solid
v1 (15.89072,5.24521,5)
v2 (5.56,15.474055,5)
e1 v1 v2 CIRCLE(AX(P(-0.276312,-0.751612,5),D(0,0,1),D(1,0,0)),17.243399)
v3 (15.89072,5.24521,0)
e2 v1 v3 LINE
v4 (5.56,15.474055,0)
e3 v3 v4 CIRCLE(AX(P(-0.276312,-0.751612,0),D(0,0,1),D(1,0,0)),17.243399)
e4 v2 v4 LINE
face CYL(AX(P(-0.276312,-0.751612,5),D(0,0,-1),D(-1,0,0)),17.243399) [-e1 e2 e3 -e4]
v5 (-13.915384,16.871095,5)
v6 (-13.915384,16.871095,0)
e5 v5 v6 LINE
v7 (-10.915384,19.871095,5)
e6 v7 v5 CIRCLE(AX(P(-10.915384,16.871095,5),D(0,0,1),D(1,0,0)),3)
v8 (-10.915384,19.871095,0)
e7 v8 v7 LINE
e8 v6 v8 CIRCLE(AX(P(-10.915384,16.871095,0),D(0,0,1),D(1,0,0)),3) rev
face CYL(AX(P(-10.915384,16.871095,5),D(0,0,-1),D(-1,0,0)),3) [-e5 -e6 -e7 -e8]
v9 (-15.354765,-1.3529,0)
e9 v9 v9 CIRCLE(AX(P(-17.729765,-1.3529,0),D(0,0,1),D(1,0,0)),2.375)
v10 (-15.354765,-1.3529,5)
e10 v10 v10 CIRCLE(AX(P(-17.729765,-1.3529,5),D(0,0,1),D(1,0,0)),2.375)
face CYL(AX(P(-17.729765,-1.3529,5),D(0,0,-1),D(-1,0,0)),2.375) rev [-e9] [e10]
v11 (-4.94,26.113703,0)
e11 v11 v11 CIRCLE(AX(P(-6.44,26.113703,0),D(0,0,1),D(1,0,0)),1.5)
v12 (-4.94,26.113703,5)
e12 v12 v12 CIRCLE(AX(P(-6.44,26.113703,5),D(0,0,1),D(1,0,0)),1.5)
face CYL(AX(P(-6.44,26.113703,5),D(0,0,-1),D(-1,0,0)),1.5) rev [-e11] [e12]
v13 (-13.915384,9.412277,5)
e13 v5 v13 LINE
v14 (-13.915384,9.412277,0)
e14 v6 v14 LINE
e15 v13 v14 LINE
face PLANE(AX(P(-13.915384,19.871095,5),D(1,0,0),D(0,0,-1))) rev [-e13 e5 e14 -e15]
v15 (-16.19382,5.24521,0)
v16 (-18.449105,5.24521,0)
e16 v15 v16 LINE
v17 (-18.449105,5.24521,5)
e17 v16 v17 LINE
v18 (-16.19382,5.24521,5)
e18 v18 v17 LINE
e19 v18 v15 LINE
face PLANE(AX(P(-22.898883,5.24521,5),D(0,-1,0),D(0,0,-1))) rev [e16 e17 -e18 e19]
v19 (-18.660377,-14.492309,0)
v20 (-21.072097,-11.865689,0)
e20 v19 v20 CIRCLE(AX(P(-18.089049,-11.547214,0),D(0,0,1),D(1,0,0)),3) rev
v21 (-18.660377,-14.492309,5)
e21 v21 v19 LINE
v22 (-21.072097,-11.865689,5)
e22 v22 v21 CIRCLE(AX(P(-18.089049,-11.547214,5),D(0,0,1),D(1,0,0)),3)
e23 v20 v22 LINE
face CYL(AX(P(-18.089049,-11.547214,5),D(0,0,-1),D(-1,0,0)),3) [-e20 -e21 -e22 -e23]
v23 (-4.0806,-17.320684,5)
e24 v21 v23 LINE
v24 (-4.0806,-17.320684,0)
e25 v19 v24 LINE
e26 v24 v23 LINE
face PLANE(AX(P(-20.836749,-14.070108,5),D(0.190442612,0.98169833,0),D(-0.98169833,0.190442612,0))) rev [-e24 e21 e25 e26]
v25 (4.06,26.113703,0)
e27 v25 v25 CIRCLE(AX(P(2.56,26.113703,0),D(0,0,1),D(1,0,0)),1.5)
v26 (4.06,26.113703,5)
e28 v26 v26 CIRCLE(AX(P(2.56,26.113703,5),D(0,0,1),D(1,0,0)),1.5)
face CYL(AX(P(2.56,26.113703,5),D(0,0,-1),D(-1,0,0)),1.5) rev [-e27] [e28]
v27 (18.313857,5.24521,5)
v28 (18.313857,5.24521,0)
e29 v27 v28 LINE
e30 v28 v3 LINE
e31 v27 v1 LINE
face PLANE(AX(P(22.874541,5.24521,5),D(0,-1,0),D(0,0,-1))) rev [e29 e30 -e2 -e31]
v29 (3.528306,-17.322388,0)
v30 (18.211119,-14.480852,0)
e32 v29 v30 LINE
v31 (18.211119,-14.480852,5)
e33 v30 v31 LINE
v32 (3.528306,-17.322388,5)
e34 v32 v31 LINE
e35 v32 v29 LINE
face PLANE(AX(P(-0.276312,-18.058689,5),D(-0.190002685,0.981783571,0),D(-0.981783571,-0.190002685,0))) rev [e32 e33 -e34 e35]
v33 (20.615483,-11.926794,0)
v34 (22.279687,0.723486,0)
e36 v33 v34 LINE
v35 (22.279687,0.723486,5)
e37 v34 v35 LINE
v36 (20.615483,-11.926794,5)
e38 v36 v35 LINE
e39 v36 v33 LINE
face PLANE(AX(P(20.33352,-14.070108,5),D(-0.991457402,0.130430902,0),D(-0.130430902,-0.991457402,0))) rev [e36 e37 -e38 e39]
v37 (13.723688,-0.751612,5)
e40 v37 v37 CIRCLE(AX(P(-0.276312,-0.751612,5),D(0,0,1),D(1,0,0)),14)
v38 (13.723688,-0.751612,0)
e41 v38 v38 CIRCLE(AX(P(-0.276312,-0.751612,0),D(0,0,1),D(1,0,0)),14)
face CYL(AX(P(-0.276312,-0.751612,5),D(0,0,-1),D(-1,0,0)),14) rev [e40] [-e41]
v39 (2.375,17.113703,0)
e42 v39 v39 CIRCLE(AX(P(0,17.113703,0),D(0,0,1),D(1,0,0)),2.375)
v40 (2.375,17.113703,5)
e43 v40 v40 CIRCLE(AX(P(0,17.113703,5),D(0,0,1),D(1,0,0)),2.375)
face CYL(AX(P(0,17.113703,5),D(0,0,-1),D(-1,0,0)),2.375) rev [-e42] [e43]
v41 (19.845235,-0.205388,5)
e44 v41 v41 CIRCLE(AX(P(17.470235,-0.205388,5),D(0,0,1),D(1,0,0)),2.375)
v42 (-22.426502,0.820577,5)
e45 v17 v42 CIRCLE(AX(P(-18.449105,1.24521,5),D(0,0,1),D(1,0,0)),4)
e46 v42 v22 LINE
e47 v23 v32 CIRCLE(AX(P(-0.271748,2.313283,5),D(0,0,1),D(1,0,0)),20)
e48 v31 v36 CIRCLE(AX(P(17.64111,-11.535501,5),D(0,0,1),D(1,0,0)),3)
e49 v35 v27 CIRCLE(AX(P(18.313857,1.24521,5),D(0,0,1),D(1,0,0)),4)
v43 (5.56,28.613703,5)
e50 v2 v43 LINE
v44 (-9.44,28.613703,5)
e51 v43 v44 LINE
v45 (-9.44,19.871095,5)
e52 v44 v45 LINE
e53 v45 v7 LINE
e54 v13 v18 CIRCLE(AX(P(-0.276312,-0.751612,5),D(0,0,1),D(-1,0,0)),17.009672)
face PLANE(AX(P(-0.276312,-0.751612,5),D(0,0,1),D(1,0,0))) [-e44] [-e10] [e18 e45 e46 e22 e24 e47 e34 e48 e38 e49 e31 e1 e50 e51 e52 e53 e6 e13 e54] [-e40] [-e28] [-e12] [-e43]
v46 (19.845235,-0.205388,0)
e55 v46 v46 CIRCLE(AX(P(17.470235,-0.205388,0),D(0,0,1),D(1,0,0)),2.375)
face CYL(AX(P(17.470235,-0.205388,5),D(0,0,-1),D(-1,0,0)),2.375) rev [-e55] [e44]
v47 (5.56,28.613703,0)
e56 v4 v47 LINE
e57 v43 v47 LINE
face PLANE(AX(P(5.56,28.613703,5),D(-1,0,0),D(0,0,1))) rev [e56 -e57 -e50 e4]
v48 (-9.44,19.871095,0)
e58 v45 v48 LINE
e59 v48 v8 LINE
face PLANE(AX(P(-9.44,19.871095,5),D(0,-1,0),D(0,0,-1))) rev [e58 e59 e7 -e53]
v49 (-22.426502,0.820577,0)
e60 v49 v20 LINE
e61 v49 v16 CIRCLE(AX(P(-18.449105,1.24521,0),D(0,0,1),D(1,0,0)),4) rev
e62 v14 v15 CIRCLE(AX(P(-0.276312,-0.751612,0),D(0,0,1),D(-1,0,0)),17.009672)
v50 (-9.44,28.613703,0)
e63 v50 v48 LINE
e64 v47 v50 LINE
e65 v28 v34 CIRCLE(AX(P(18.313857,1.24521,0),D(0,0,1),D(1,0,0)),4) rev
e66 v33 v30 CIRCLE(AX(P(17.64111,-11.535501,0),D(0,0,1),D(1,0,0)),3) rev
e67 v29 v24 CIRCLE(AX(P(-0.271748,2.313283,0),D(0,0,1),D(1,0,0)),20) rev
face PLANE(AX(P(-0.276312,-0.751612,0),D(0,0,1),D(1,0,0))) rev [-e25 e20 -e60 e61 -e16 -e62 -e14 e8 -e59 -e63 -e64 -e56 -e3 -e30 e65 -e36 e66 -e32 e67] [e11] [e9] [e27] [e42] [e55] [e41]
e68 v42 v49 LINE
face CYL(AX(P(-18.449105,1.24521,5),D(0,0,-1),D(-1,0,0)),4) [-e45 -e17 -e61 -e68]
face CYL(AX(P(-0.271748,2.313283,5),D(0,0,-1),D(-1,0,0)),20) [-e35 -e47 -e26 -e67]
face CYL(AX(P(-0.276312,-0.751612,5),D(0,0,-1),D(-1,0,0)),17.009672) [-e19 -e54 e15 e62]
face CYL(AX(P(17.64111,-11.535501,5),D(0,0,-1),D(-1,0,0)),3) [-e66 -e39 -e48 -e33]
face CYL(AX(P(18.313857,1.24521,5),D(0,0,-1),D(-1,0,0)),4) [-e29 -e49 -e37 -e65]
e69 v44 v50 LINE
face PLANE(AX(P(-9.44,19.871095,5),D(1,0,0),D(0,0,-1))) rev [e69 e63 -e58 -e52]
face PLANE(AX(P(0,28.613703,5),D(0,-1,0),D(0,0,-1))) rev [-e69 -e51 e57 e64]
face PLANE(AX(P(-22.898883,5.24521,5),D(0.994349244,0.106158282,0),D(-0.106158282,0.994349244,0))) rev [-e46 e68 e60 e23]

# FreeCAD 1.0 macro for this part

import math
import FreeCAD as App
import Part
import Sketcher

V = App.Vector
Q = App.Units.Quantity


def edges_at(feature, points):
    """Names of the edges that pass closest to the given points."""
    edges = feature.Shape.Edges
    near = lambda p: min(range(len(edges)), key=lambda i: edges[i].distToShape(Part.Vertex(*p))[0])
    return sorted({f"Edge{near(p) + 1}" for p in points})

doc = App.newDocument("Part")
params = doc.addObject("Spreadsheet::Sheet", "Params")
for row, (alias, value) in enumerate([
    ("sketch1_diameter", "28 mm"),
    ("sketch1_diameter2", "3 mm"),
    ("sketch1_diameter3", "4.75 mm"),
    ("sketch1_width", "15 mm"),
    ("pad1_length", "5 mm"),
    ("fillet_radius", "4 mm"),
    ("fillet2_radius", "3 mm"),
    ("fillet3_radius", "20 mm"),
    ("fillet4_radius", "3 mm"),
], start=1):
    params.set(f"A{row}", alias)
    params.set(f"B{row}", "=" + value)
    params.setAlias(f"B{row}", alias)

body = doc.addObject("PartDesign::Body", "Body")

# Sketch on XY plane
sketch1 = doc.addObject("Sketcher::SketchObject", "Sketch")
body.addObject(sketch1)
sketch1.AttachmentSupport = (doc.XY_Plane, [""])
sketch1.MapMode = "FlatFace"
sketch1.addGeometry([
    Part.LineSegment(V(-22.9, 5.2, 0), V(-20.8, -14.1, 0)),  # 0
    Part.LineSegment(V(-20.8, -14.1, 0), V(-0.3, -18.1, 0)),  # 1
    Part.LineSegment(V(-0.3, -18.1, 0), V(20.3, -14.1, 0)),  # 2
    Part.LineSegment(V(20.3, -14.1, 0), V(22.9, 5.2, 0)),  # 3
    Part.LineSegment(V(22.9, 5.2, 0), V(15.9, 5.2, 0)),  # 4
    Part.ArcOfCircle(Part.Circle(V(-0.3, -0.8, 0), V(0, 0, 1), 17.2), math.radians(20), math.radians(70)),  # 5
    Part.LineSegment(V(5.6, 15.5, 0), V(5.6, 28.6, 0)),  # 6
    Part.LineSegment(V(5.6, 28.6, 0), V(-9.4, 28.6, 0)),  # 7
    Part.LineSegment(V(-9.4, 28.6, 0), V(-9.4, 19.9, 0)),  # 8
    Part.LineSegment(V(-9.4, 19.9, 0), V(-13.9, 19.9, 0)),  # 9
    Part.LineSegment(V(-13.9, 19.9, 0), V(-13.9, 9.4, 0)),  # 10
    Part.ArcOfCircle(Part.Circle(V(-0.3, -0.8, 0), V(0, 0, 1), 17), math.radians(143.31), math.radians(159.36)),  # 11
    Part.LineSegment(V(-16.2, 5.2, 0), V(-22.9, 5.2, 0)),  # 12
    Part.Circle(V(-17.7, -1.4, 0), V(0, 0, 1), 2.4),  # 13
    Part.Circle(V(-0.3, -0.8, 0), V(0, 0, 1), 14),  # 14
    Part.Circle(V(17.5, -0.2, 0), V(0, 0, 1), 2.4),  # 15
    Part.Circle(V(-6.4, 26.1, 0), V(0, 0, 1), 1.5),  # 16
    Part.Circle(V(0, 17.1, 0), V(0, 0, 1), 2.4),  # 17
    Part.Circle(V(2.6, 26.1, 0), V(0, 0, 1), 1.5),  # 18
], False)
sketch1.addConstraint([
    Sketcher.Constraint("Coincident", 0, 2, 1, 1),
    Sketcher.Constraint("Coincident", 1, 2, 2, 1),
    Sketcher.Constraint("Coincident", 2, 2, 3, 1),
    Sketcher.Constraint("Coincident", 3, 2, 4, 1),
    Sketcher.Constraint("Coincident", 4, 2, 5, 1),
    Sketcher.Constraint("Coincident", 5, 2, 6, 1),
    Sketcher.Constraint("Coincident", 6, 2, 7, 1),
    Sketcher.Constraint("Coincident", 7, 2, 8, 1),
    Sketcher.Constraint("Coincident", 8, 2, 9, 1),
    Sketcher.Constraint("Coincident", 9, 2, 10, 1),
    Sketcher.Constraint("Coincident", 10, 2, 11, 1),
    Sketcher.Constraint("Coincident", 11, 2, 12, 1),
    Sketcher.Constraint("Coincident", 12, 2, 0, 1),
    Sketcher.Constraint("Horizontal", 4),
    Sketcher.Constraint("Vertical", 6),
    Sketcher.Constraint("Horizontal", 7),
    Sketcher.Constraint("Vertical", 8),
    Sketcher.Constraint("Horizontal", 9),
    Sketcher.Constraint("Vertical", 10),
    Sketcher.Constraint("Horizontal", 12),
    Sketcher.Constraint("Coincident", 11, 3, 5, 3),
    Sketcher.Constraint("Coincident", 14, 3, 5, 3),
    Sketcher.Constraint("Equal", 13, 15),
    Sketcher.Constraint("Equal", 15, 17),
    Sketcher.Constraint("Equal", 16, 18),
    Sketcher.Constraint("PointOnObject", 17, 3, -2),
    Sketcher.Constraint("Horizontal", 16, 3, 18, 3),
    Sketcher.Constraint("Horizontal", 0, 2, 2, 2),
    Sketcher.Constraint("Horizontal", 4, 2, 11, 2),
    Sketcher.Constraint("Vertical", 14, 3, 1, 2),
    Sketcher.Constraint("Diameter", 14, Q("28 mm")),
    Sketcher.Constraint("Diameter", 16, Q("3 mm")),
    Sketcher.Constraint("Diameter", 13, Q("4.75 mm")),
    Sketcher.Constraint("DistanceX", 7, 2, 7, 1, Q("15 mm")),
    Sketcher.Constraint("DistanceY", 17, 3, 16, 3, Q("9 mm")),
    Sketcher.Constraint("DistanceX", 16, 3, 18, 3, Q("9 mm")),
    Sketcher.Constraint("DistanceX", 18, 3, 5, 2, Q("3 mm")),
    Sketcher.Constraint("Radius", 5, Q("17.243399 mm")),
    Sketcher.Constraint("DistanceX", 13, 3, 15, 3, Q("35.2 mm")),
    Sketcher.Constraint("DistanceY", 18, 3, 6, 2, Q("2.5 mm")),
    Sketcher.Constraint("DistanceX", 16, 3, -1, 1, Q("6.44 mm")),
    Sketcher.Constraint("Radius", 11, Q("17.009672 mm")),
    Sketcher.Constraint("DistanceX", 4, 2, 4, 1, Q("6.983821 mm")),
    Sketcher.Constraint("DistanceY", 6, 1, 6, 2, Q("13.139648 mm")),
    Sketcher.Constraint("DistanceY", 13, 3, -1, 1, Q("1.3529 mm")),
    Sketcher.Constraint("DistanceX", 12, 2, 10, 2, Q("8.983499 mm")),
    Sketcher.Constraint("DistanceX", 9, 2, 9, 1, Q("4.475384 mm")),
    Sketcher.Constraint("DistanceX", 12, 2, 12, 1, Q("6.705063 mm")),
    Sketcher.Constraint("DistanceY", 8, 2, 8, 1, Q("8.742608 mm")),
    Sketcher.Constraint("DistanceY", 10, 2, 10, 1, Q("10.458818 mm")),
    Sketcher.Constraint("DistanceY", 11, 3, -1, 1, Q("0.751612 mm")),
    Sketcher.Constraint("DistanceX", 0, 2, -1, 1, Q("20.836749 mm")),
    Sketcher.Constraint("DistanceY", 1, 2, -1, 1, Q("18.058689 mm")),
    Sketcher.Constraint("DistanceX", -1, 1, 2, 2, Q("20.33352 mm")),
    Sketcher.Constraint("DistanceY", 15, 3, 16, 3, Q("26.31909 mm")),
    Sketcher.Constraint("DistanceY", 0, 2, 17, 3, Q("31.18381 mm")),
    Sketcher.Constraint("DistanceX", 13, 3, 10, 2, Q("3.814381 mm")),
])
sketch1.setExpression("Constraints[30]", "Params.sketch1_diameter")
sketch1.setExpression("Constraints[31]", "Params.sketch1_diameter2")
sketch1.setExpression("Constraints[32]", "Params.sketch1_diameter3")
sketch1.setExpression("Constraints[33]", "Params.sketch1_width")
pad1 = doc.addObject("PartDesign::Pad", "Pad")
body.addObject(pad1)
pad1.Profile = sketch1
pad1.setExpression("Length", "Params.pad1_length")
doc.recompute()

fillet = doc.addObject("PartDesign::Fillet", "Fillet")
body.addObject(fillet)
fillet.Base = (pad1, edges_at(pad1, [(-22.899, 5.245, 2.5), (22.875, 5.245, 2.5)]))
fillet.setExpression("Radius", "Params.fillet_radius")
doc.recompute()

fillet2 = doc.addObject("PartDesign::Fillet", "Fillet001")
body.addObject(fillet2)
fillet2.Base = (fillet, edges_at(fillet, [(-20.837, -14.07, 2.5), (20.334, -14.07, 2.5)]))
fillet2.setExpression("Radius", "Params.fillet2_radius")
doc.recompute()

fillet3 = doc.addObject("PartDesign::Fillet", "Fillet002")
body.addObject(fillet3)
fillet3.Base = (fillet2, edges_at(fillet2, [(-0.276, -18.059, 2.5)]))
fillet3.setExpression("Radius", "Params.fillet3_radius")
doc.recompute()

fillet4 = doc.addObject("PartDesign::Fillet", "Fillet003")
body.addObject(fillet4)
fillet4.Base = (fillet3, edges_at(fillet3, [(-13.915, 19.871, 2.5)]))
fillet4.setExpression("Radius", "Params.fillet4_radius")

doc.recompute()
